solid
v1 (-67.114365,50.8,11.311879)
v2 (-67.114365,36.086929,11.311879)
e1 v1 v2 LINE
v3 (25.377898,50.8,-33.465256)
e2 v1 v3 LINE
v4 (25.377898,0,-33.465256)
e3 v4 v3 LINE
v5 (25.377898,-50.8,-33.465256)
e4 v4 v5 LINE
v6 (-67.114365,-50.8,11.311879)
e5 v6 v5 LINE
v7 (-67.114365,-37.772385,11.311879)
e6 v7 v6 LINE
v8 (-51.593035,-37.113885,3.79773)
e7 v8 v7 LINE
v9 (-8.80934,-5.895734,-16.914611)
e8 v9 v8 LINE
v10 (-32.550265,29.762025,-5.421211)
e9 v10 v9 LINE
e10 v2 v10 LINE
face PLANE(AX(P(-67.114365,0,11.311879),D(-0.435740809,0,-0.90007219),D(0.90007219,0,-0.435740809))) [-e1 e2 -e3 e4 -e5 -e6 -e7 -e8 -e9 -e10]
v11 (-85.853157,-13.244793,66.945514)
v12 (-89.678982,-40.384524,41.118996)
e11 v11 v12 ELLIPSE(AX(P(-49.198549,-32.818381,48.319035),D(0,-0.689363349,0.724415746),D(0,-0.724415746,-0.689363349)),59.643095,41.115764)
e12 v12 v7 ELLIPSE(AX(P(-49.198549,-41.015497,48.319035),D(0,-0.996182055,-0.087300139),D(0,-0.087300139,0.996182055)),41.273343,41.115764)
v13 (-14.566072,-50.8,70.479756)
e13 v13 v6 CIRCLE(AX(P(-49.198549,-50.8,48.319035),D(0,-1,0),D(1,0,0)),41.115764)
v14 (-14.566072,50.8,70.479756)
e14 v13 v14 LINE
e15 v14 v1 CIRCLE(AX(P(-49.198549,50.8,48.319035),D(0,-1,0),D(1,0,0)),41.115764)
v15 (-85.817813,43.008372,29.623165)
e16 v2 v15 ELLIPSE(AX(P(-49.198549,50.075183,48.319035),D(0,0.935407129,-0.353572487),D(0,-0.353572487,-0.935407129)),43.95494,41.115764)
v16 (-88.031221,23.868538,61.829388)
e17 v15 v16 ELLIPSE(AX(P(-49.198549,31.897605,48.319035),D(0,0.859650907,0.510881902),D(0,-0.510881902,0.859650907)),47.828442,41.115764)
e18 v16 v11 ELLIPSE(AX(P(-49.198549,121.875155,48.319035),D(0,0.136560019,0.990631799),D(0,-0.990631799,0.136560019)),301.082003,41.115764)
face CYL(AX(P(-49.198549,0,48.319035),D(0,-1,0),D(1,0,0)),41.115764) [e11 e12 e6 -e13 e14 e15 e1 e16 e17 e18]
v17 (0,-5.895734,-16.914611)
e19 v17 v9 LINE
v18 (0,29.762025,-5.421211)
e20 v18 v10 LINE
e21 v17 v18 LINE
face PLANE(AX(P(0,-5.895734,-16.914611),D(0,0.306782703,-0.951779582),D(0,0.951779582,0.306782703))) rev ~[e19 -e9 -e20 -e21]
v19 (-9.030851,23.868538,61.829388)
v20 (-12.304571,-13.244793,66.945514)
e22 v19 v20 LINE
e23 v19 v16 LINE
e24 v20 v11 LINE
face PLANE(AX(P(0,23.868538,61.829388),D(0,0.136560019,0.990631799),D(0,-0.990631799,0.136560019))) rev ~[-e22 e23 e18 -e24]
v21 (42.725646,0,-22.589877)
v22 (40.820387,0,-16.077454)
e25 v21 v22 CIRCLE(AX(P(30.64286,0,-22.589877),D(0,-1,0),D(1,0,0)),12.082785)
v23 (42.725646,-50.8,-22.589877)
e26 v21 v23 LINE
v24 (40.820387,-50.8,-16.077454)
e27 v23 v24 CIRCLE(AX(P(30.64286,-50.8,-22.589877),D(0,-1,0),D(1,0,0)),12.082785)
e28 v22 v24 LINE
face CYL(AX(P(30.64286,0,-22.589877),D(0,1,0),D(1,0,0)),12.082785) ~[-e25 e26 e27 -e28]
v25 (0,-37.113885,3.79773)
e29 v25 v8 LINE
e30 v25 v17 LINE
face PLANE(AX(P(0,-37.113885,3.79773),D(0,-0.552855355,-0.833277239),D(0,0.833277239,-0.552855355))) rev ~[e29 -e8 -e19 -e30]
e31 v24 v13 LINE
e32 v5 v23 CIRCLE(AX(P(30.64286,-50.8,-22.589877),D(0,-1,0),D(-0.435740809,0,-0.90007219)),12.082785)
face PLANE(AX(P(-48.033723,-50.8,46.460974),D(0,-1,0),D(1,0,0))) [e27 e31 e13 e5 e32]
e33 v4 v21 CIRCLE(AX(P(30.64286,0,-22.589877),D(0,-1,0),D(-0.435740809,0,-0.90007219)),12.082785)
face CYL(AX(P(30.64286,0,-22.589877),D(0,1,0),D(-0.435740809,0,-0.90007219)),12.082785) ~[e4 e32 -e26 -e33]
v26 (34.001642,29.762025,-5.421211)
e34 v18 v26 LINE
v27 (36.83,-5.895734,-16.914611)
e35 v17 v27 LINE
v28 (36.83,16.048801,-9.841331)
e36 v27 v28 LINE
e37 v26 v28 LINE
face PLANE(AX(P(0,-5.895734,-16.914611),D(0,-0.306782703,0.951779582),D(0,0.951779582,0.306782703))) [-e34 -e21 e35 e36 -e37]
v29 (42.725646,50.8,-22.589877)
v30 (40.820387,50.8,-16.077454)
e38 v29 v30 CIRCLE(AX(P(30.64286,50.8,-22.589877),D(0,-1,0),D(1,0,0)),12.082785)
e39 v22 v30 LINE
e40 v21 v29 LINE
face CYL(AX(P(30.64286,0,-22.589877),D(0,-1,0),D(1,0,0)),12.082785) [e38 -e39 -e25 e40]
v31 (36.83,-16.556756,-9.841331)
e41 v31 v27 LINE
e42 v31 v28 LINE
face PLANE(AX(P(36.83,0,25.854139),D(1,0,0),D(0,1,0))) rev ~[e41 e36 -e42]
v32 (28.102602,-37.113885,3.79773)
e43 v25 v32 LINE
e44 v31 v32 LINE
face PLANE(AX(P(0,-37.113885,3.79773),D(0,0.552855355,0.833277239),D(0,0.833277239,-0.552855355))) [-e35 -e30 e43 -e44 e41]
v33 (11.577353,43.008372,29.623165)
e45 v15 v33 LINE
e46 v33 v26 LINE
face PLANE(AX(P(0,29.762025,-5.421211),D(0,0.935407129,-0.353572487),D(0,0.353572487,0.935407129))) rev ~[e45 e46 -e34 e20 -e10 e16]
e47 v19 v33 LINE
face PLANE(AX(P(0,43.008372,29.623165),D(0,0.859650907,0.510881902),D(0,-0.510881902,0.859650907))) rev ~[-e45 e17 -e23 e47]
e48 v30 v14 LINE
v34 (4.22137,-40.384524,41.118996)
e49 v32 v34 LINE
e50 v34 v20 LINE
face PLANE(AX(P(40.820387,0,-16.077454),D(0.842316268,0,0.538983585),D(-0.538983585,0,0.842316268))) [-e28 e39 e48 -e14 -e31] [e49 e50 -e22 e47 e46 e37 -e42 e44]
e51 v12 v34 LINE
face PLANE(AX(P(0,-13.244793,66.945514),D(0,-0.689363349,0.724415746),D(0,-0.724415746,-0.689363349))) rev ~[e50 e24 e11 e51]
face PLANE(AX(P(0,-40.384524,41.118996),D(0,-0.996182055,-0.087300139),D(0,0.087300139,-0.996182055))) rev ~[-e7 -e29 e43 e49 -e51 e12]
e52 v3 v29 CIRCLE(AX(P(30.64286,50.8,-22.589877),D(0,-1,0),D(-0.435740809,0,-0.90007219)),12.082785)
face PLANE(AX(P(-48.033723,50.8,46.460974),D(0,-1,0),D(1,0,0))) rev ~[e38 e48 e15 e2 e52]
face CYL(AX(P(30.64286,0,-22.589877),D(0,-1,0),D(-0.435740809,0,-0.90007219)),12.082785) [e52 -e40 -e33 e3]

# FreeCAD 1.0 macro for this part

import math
import FreeCAD as App
import Part
import Sketcher
from FreeCAD import Vector
Q = App.Units.Quantity

doc = App.newDocument("Part")
body = doc.addObject("PartDesign::Body", "Body")

# Sketch on XZ plane
sketch1 = body.newObject("Sketcher::SketchObject", "Sketch")
sketch1.AttachmentSupport = (doc.getObject("XZ_Plane"), [""])
sketch1.MapMode = "FlatFace"
sketch1.addGeometry([
    Part.ArcOfCircle(Part.Circle(Vector(-49.198549, 48.319035, 0), Vector(0, 0, 1), 41.115764), math.radians(32.614474), math.radians(244.167558)),  # 0
    Part.LineSegment(Vector(-67.114365, 11.311879, 0), Vector(25.377898, -33.465256, 0)),  # 1
    Part.ArcOfCircle(Part.Circle(Vector(30.64286, -22.589877, 0), Vector(0, 0, 1), 12.082785), math.radians(-115.832442), math.radians(0)),  # 2
    Part.ArcOfCircle(Part.Circle(Vector(30.64286, -22.589877, 0), Vector(0, 0, 1), 12.082785), math.radians(0), math.radians(32.614474)),  # 3
    Part.LineSegment(Vector(40.820387, -16.077454, 0), Vector(-14.566072, 70.479756, 0)),  # 4
], False)
sketch1.addConstraint([
    Sketcher.Constraint("Tangent", 0, 2, 1, 1),
    Sketcher.Constraint("Tangent", 1, 2, 2, 1),
    Sketcher.Constraint("Tangent", 2, 2, 3, 1),
    Sketcher.Constraint("Tangent", 3, 2, 4, 1),
    Sketcher.Constraint("Tangent", 4, 2, 0, 1),
    Sketcher.Constraint("Equal", 2, 3),
    Sketcher.Constraint("Horizontal", 3, 3, 2, 2),
    Sketcher.Constraint("Radius", 0, 41.115764),
    Sketcher.Constraint("Radius", 2, 12.082785),
    Sketcher.Constraint("DistanceY", 1, 2, 3, 2, 17.387802),
    Sketcher.Constraint("Distance", 1, 102.760938),
    Sketcher.Constraint("DistanceX", 0, 3, -1, 1, 49.198549),
    Sketcher.Constraint("DistanceY", -1, 1, 0, 2, 11.311879),
])
pad1 = body.newObject("PartDesign::Pad", "Pad")
pad1.Profile = sketch1
pad1.Length = Q("4 in")
pad1.Midplane = True

# Sketch on YZ plane
sketch2 = body.newObject("Sketcher::SketchObject", "Sketch001")
sketch2.AttachmentSupport = (doc.getObject("YZ_Plane"), [""])
sketch2.MapMode = "FlatFace"
sketch2.addGeometry([
    Part.LineSegment(Vector(-13.244793, 66.945514, 0), Vector(-40.384524, 41.118996, 0)),  # 0
    Part.LineSegment(Vector(-40.384524, 41.118996, 0), Vector(-37.113885, 3.79773, 0)),  # 1
    Part.LineSegment(Vector(-37.113885, 3.79773, 0), Vector(-5.895734, -16.914611, 0)),  # 2
    Part.LineSegment(Vector(-5.895734, -16.914611, 0), Vector(29.762025, -5.421211, 0)),  # 3
    Part.LineSegment(Vector(29.762025, -5.421211, 0), Vector(43.008372, 29.623165, 0)),  # 4
    Part.LineSegment(Vector(43.008372, 29.623165, 0), Vector(23.868538, 61.829388, 0)),  # 5
    Part.LineSegment(Vector(23.868538, 61.829388, 0), Vector(-13.244793, 66.945514, 0)),  # 6
], False)
sketch2.addConstraint([
    Sketcher.Constraint("Coincident", 0, 2, 1, 1),
    Sketcher.Constraint("Coincident", 1, 2, 2, 1),
    Sketcher.Constraint("Coincident", 2, 2, 3, 1),
    Sketcher.Constraint("Coincident", 3, 2, 4, 1),
    Sketcher.Constraint("Coincident", 4, 2, 5, 1),
    Sketcher.Constraint("Coincident", 5, 2, 6, 1),
    Sketcher.Constraint("Coincident", 6, 2, 0, 1),
    Sketcher.Constraint("Equal", 0, 1),
    Sketcher.Constraint("Equal", 1, 2),
    Sketcher.Constraint("Equal", 2, 3),
    Sketcher.Constraint("Equal", 3, 4),
    Sketcher.Constraint("Equal", 4, 5),
    Sketcher.Constraint("Equal", 5, 6),
    Sketcher.Constraint("DistanceY", 3, 2, 4, 2, Q("1.3796999 in")),
    Sketcher.Constraint("DistanceY", 2, 2, 3, 2, 11.4934),
    Sketcher.Constraint("DistanceY", 3, 2, 5, 2, 67.250599),
    Sketcher.Constraint("DistanceY", -1, 1, 1, 2, 3.79773),
    Sketcher.Constraint("DistanceY", 2, 2, -1, 1, 16.914611),
    Sketcher.Constraint("DistanceX", 0, 2, 1, 2, 3.270639),
    Sketcher.Constraint("DistanceX", 1, 2, 2, 2, 31.218151),
    Sketcher.Constraint("DistanceX", 0, 2, -1, 1, 40.384524),
])
pocket1 = body.newObject("PartDesign::Pocket", "Pocket")
pocket1.Profile = sketch2
pocket1.Type = "TwoLengths"
pocket1.Length = Q("4.37 in")
pocket1.Length2 = Q("1.45 in")

doc.recompute()
